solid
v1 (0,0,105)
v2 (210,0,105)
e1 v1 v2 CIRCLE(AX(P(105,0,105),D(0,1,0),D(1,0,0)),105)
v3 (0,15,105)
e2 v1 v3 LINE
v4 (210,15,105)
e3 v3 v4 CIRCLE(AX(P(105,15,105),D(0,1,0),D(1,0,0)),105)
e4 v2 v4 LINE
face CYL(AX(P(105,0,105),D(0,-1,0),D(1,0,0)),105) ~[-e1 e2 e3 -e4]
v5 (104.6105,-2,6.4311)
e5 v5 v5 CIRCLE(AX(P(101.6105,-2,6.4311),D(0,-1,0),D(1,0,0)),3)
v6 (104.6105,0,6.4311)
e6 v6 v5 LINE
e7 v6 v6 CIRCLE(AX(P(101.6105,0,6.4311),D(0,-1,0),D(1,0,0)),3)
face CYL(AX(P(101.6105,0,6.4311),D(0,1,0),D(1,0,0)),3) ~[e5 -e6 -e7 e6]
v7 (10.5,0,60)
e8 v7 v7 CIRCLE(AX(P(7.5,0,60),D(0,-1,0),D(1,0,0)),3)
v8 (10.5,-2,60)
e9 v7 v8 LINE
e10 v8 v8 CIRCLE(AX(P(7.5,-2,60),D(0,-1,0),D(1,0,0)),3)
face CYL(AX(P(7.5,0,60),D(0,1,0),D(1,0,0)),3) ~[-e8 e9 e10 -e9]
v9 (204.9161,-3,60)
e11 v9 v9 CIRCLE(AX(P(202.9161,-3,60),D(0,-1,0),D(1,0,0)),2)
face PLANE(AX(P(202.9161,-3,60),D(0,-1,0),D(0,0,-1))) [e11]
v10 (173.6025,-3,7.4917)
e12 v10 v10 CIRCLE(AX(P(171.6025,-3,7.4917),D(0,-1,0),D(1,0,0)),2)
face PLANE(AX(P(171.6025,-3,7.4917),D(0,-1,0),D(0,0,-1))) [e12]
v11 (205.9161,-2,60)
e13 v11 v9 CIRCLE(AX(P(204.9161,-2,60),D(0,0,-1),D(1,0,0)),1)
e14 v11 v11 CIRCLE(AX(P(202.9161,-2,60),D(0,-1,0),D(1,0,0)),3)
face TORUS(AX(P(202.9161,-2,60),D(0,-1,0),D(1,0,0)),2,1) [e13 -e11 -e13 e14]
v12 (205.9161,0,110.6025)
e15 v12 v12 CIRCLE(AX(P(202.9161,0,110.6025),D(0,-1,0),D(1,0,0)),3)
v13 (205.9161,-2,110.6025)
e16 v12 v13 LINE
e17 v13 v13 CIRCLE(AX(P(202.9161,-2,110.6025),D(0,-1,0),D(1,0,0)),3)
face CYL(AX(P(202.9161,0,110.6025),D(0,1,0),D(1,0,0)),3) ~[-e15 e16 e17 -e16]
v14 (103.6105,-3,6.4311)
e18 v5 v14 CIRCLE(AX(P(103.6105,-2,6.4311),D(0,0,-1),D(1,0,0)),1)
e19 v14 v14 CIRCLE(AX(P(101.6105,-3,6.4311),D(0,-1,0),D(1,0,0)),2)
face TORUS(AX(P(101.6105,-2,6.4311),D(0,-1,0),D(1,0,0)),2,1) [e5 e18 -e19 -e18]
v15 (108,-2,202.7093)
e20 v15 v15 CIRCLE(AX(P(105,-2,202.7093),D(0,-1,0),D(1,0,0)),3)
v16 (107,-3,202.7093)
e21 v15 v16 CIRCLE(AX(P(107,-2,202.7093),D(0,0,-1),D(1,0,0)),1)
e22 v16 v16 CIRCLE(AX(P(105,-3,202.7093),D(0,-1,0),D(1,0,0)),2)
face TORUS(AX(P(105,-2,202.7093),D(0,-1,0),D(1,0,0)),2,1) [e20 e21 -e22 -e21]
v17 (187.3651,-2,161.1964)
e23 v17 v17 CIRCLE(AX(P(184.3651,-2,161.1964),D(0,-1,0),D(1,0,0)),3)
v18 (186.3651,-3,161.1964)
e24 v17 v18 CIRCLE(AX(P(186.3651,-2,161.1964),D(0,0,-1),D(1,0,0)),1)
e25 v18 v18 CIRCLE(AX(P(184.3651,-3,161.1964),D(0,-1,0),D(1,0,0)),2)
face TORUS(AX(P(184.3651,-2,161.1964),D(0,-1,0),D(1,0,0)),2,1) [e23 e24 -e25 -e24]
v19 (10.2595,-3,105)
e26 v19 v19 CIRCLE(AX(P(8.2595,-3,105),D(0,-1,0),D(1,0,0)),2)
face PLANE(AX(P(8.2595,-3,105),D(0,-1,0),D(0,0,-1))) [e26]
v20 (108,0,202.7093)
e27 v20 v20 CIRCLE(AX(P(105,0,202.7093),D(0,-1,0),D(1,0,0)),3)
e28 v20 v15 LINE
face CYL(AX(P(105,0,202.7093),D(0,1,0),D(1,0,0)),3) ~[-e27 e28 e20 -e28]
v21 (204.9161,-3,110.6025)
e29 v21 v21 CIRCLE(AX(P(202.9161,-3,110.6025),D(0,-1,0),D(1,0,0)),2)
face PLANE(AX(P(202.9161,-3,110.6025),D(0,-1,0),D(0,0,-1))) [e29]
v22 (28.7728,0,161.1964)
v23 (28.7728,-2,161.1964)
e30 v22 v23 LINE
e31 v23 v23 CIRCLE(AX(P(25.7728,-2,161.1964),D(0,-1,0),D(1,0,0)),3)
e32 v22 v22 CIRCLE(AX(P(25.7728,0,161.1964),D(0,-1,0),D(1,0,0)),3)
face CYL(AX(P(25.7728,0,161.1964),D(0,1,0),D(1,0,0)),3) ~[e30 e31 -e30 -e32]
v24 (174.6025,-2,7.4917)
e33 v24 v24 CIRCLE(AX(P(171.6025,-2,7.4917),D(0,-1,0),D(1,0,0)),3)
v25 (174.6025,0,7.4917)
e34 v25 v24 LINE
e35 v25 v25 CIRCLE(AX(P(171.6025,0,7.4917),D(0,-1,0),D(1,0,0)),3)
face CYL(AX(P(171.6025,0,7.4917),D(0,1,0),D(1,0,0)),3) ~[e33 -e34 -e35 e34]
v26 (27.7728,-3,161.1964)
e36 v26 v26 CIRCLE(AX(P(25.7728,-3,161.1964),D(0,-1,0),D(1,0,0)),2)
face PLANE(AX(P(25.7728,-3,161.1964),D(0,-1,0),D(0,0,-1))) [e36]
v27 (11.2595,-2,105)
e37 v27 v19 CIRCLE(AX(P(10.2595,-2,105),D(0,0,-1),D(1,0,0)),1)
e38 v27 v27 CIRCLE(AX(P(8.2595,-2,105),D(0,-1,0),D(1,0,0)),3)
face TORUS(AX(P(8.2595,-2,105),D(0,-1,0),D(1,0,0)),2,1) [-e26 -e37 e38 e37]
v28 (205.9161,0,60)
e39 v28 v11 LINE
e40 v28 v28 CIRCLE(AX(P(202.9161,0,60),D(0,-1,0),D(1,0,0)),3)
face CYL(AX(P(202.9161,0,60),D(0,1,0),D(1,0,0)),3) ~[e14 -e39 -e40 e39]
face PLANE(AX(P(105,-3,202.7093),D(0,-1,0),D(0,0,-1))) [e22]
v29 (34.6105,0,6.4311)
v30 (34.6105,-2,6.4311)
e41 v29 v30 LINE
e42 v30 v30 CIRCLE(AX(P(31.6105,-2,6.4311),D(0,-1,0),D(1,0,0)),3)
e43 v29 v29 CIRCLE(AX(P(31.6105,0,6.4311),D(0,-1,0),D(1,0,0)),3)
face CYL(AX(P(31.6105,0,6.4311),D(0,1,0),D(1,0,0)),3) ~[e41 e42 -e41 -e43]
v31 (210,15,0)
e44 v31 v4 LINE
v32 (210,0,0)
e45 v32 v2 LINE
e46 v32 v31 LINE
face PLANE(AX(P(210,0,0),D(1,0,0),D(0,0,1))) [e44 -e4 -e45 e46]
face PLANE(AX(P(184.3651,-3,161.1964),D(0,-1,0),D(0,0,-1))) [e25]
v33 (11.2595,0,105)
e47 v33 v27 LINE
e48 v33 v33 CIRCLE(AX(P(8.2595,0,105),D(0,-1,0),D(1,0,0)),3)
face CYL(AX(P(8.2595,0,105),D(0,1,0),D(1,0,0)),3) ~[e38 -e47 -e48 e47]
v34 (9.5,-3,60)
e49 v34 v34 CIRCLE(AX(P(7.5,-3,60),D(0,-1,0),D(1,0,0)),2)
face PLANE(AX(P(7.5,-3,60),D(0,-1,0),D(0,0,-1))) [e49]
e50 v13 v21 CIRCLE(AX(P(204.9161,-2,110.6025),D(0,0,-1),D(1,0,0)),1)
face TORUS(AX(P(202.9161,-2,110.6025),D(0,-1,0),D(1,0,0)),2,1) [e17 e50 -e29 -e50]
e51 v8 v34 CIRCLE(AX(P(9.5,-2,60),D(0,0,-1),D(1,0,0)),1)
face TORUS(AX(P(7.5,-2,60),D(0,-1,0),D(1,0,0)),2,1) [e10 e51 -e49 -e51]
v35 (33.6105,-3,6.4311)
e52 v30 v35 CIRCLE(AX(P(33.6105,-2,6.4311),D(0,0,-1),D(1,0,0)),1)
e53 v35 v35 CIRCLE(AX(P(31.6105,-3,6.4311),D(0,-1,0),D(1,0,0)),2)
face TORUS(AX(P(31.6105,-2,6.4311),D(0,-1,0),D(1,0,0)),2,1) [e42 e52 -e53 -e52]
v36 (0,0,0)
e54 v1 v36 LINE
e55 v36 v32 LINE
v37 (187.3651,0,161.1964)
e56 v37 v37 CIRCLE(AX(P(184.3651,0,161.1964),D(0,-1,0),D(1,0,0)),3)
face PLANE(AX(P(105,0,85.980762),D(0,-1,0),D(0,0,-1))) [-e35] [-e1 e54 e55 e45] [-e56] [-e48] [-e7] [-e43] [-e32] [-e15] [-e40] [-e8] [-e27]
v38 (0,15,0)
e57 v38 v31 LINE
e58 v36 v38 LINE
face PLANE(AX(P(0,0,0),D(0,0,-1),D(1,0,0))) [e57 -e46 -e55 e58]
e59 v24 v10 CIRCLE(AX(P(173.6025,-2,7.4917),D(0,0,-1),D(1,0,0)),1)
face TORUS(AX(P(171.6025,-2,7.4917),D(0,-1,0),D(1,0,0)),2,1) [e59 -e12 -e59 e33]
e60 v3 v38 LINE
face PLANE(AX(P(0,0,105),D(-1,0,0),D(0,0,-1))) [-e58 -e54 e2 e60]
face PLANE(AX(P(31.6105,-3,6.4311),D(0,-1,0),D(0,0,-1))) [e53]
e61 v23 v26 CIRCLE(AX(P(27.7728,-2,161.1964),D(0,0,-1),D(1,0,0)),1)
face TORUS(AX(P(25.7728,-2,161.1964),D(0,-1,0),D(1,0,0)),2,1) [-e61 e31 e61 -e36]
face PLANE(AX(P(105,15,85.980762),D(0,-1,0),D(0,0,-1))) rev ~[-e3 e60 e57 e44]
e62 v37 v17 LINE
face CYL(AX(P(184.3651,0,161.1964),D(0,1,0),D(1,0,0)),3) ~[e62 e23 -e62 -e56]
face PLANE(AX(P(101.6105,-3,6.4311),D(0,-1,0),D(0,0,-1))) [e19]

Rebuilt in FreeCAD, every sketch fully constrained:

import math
import FreeCAD as App
import Part
import Sketcher

V = App.Vector
Q = App.Units.Quantity


def edges_at(feature, points):
    """Names of the edges that pass closest to the given points."""
    edges = feature.Shape.Edges
    near = lambda p: min(range(len(edges)), key=lambda i: edges[i].distToShape(Part.Vertex(*p))[0])
    return sorted({f"Edge{near(p) + 1}" for p in points})

doc = App.newDocument("Part")
body = doc.addObject("PartDesign::Body", "Body")

# Sketch on XZ plane
sketch1 = doc.addObject("Sketcher::SketchObject", "Sketch")
body.addObject(sketch1)
sketch1.AttachmentSupport = (doc.XZ_Plane, [""])
sketch1.MapMode = "FlatFace"
sketch1.addGeometry([
    Part.LineSegment(V(0, 0, 0), V(210, 0, 0)),
    Part.LineSegment(V(210, 0, 0), V(210, 105, 0)),
    Part.ArcOfCircle(Part.Circle(V(105, 105, 0), V(0, 0, 1), 105), math.radians(0), math.radians(180)),
    Part.LineSegment(V(0, 105, 0), V(0, 0, 0)),
], False)
sketch1.addConstraint([
    Sketcher.Constraint("Coincident", 0, 2, 1, 1),
    Sketcher.Constraint("Tangent", 1, 2, 2, 1),
    Sketcher.Constraint("Tangent", 2, 2, 3, 1),
    Sketcher.Constraint("Coincident", 3, 2, 0, 1),
    Sketcher.Constraint("Horizontal", 0),
    Sketcher.Constraint("Vertical", 1),
    Sketcher.Constraint("Vertical", 3),
    Sketcher.Constraint("Coincident", 3, 2, -1, 1),
    Sketcher.Constraint("Radius", 2, Q("105 mm")),
    Sketcher.Constraint("DistanceY", 1, 1, 1, 2, Q("105 mm")),
])
pad1 = doc.addObject("PartDesign::Pad", "Pad")
body.addObject(pad1)
pad1.Profile = sketch1
pad1.Length = 15
pad1.Reversed = True

# Sketch on XZ plane
sketch2 = doc.addObject("Sketcher::SketchObject", "Sketch001")
body.addObject(sketch2)
sketch2.AttachmentSupport = (doc.XZ_Plane, [""])
sketch2.MapMode = "FlatFace"
sketch2.addGeometry([
    Part.Circle(V(105, 202.7, 0), V(0, 0, 1), 3),  # 0
    Part.Circle(V(184.4, 161.2, 0), V(0, 0, 1), 3),  # 1
    Part.Circle(V(202.9, 110.6, 0), V(0, 0, 1), 3),  # 2
    Part.Circle(V(202.9, 60, 0), V(0, 0, 1), 3),  # 3
    Part.Circle(V(171.6, 7.5, 0), V(0, 0, 1), 3),  # 4
    Part.Circle(V(101.6, 6.4, 0), V(0, 0, 1), 3),  # 5
    Part.Circle(V(7.5, 60, 0), V(0, 0, 1), 3),  # 6
    Part.Circle(V(31.6, 6.4, 0), V(0, 0, 1), 3),  # 7
    Part.Circle(V(8.3, 105, 0), V(0, 0, 1), 3),  # 8
    Part.Circle(V(25.8, 161.2, 0), V(0, 0, 1), 3),  # 9
], False)
sketch2.addConstraint([
    Sketcher.Constraint("Equal", 0, 1),
    Sketcher.Constraint("Equal", 1, 2),
    Sketcher.Constraint("Equal", 2, 3),
    Sketcher.Constraint("Equal", 3, 4),
    Sketcher.Constraint("Equal", 4, 5),
    Sketcher.Constraint("Equal", 5, 6),
    Sketcher.Constraint("Equal", 6, 7),
    Sketcher.Constraint("Equal", 7, 8),
    Sketcher.Constraint("Equal", 8, 9),
    Sketcher.Constraint("Horizontal", 3, 3, 6, 3),
    Sketcher.Constraint("Horizontal", 5, 3, 7, 3),
    Sketcher.Constraint("Horizontal", 1, 3, 9, 3),
    Sketcher.Constraint("Vertical", 2, 3, 3, 3),
    Sketcher.Constraint("Diameter", 0, Q("6 mm")),
    Sketcher.Constraint("DistanceX", -1, 1, 0, 3, Q("105 mm")),
    Sketcher.Constraint("DistanceY", -1, 1, 3, 3, Q("60 mm")),
    Sketcher.Constraint("DistanceY", -1, 1, 8, 3, Q("105 mm")),
    Sketcher.Constraint("DistanceX", 7, 3, 5, 3, Q("70 mm")),
    Sketcher.Constraint("DistanceX", -1, 1, 6, 3, Q("7.5 mm")),
    Sketcher.Constraint("DistanceX", -1, 1, 1, 3, Q("184.365 mm")),
    Sketcher.Constraint("DistanceX", -1, 1, 2, 3, Q("202.916 mm")),
    Sketcher.Constraint("DistanceY", -1, 1, 5, 3, Q("6.431 mm")),
    Sketcher.Constraint("DistanceY", 1, 3, 0, 3, Q("41.513 mm")),
    Sketcher.Constraint("DistanceY", 2, 3, 1, 3, Q("50.594 mm")),
    Sketcher.Constraint("DistanceX", 5, 3, 4, 3, Q("69.992 mm")),
    Sketcher.Constraint("DistanceX", 8, 3, 7, 3, Q("23.351 mm")),
    Sketcher.Constraint("DistanceY", -1, 1, 0, 3, Q("202.7093 mm")),
    Sketcher.Constraint("DistanceX", -1, 1, 4, 3, Q("171.6025 mm")),
    Sketcher.Constraint("DistanceY", -1, 1, 4, 3, Q("7.4917 mm")),
    Sketcher.Constraint("DistanceX", -1, 1, 9, 3, Q("25.7728 mm")),
])
pad2 = doc.addObject("PartDesign::Pad", "Pad001")
body.addObject(pad2)
pad2.Profile = sketch2
pad2.Length = 3
doc.recompute()

fillet = doc.addObject("PartDesign::Fillet", "Fillet")
body.addObject(fillet)
fillet.Base = (pad2, edges_at(pad2, [
    (22.773, -3, 161.196),
    (102, -3, 202.709),
    (181.365, -3, 161.196),
    (199.916, -3, 110.603),
    (199.916, -3, 60),
    (168.602, -3, 7.492),
    (98.611, -3, 6.431),
    (28.61, -3, 6.431),
    (4.5, -3, 60),
    (5.26, -3, 105),
]))
fillet.Radius = 1

doc.recompute()
